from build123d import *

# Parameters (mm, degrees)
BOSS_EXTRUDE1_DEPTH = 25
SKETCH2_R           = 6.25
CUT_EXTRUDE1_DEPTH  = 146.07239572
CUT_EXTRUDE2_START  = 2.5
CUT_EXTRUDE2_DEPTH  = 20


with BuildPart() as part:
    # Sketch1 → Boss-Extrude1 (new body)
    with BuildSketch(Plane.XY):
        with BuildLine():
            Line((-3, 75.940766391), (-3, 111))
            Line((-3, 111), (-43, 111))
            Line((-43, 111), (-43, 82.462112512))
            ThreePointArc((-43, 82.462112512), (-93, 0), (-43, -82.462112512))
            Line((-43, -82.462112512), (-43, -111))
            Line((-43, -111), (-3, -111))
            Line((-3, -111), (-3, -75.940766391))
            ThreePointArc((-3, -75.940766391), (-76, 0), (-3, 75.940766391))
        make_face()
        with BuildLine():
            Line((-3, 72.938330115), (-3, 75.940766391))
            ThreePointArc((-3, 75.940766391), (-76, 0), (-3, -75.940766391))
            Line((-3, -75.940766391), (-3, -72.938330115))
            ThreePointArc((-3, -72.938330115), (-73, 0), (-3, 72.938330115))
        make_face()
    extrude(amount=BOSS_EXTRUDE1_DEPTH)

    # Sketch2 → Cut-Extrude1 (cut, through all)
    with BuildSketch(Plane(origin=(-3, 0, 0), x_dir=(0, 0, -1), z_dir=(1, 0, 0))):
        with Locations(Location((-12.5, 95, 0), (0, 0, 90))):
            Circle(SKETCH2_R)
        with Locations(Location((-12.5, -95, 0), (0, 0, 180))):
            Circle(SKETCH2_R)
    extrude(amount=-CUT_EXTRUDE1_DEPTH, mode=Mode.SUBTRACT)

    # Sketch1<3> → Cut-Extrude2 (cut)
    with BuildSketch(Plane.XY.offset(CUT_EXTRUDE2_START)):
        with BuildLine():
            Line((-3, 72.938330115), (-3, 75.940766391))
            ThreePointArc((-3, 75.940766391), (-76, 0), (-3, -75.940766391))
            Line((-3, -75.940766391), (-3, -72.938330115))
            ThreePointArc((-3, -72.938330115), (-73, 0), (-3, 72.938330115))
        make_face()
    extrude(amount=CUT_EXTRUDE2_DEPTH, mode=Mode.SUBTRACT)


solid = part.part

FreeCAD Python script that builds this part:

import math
import FreeCAD as App
import Part
import Sketcher
from FreeCAD import Vector

doc = App.newDocument("Part")
body = doc.addObject("PartDesign::Body", "Body")

sketch1 = body.newObject("Sketcher::SketchObject", "Sketch")
sketch1.AttachmentSupport = (doc.getObject("XY_Plane"), [""])
sketch1.MapMode = "FlatFace"
sketch1.addGeometry([
    Part.LineSegment(Vector(-3, 111, 0), Vector(-43, 111, 0)),
    Part.LineSegment(Vector(-43, 111, 0), Vector(-43, 82.462113, 0)),
    Part.ArcOfCircle(Part.Circle(Vector(0, 0, 0), Vector(0, 0, 1), 93), math.radians(117.53986), math.radians(242.46014)),
    Part.LineSegment(Vector(-43, -82.462113, 0), Vector(-43, -111, 0)),
    Part.LineSegment(Vector(-43, -111, 0), Vector(-3, -111, 0)),
    Part.LineSegment(Vector(-3, -111, 0), Vector(-3, -72.93833, 0)),
    Part.ArcOfCircle(Part.Circle(Vector(0, 0, 0), Vector(0, 0, 1), 73), math.radians(92.355284), math.radians(267.644716)),
    Part.LineSegment(Vector(-3, 72.93833, 0), Vector(-3, 111, 0)),
], False)
sketch1.addConstraint([
    Sketcher.Constraint("Coincident", 0, 2, 1, 1),
    Sketcher.Constraint("Coincident", 1, 2, 2, 1),
    Sketcher.Constraint("Coincident", 2, 2, 3, 1),
    Sketcher.Constraint("Coincident", 3, 2, 4, 1),
    Sketcher.Constraint("Coincident", 4, 2, 5, 1),
    Sketcher.Constraint("Coincident", 5, 2, 6, 2),
    Sketcher.Constraint("Coincident", 6, 1, 7, 1),
    Sketcher.Constraint("Coincident", 7, 2, 0, 1),
    Sketcher.Constraint("Horizontal", 0),
    Sketcher.Constraint("Vertical", 1),
    Sketcher.Constraint("Vertical", 3),
    Sketcher.Constraint("Horizontal", 4),
    Sketcher.Constraint("Vertical", 5),
    Sketcher.Constraint("Vertical", 7),
    Sketcher.Constraint("Coincident", 2, 3, -1, 1),
    Sketcher.Constraint("Coincident", 6, 3, -1, 1),
    Sketcher.Constraint("Symmetric", 0, 2, 3, 2, -1),
    Sketcher.Constraint("Vertical", 5, 2, 6, 1),
    Sketcher.Constraint("Radius", 2, 93.0),
    Sketcher.Constraint("Radius", 6, 73.0),
    Sketcher.Constraint("DistanceX", 0, 2, 0, 1, 40.0),
    Sketcher.Constraint("DistanceX", 0, 2, -1, 1, 43.0),
    Sketcher.Constraint("DistanceY", -1, 1, 0, 2, 111.0),
])
pad1 = body.newObject("PartDesign::Pad", "Pad")
pad1.Profile = sketch1
pad1.Length = 25

sketch2 = body.newObject("Sketcher::SketchObject", "Sketch001")
sketch2.AttachmentSupport = (doc.getObject("YZ_Plane"), [""])
sketch2.MapMode = "FlatFace"
sketch2.AttachmentOffset = App.Placement(Vector(0, 0, -3), App.Rotation())
sketch2.addGeometry([
    Part.Circle(Vector(95, 12.5, 0), Vector(0, 0, 1), 6.25),
    Part.Circle(Vector(-95, 12.5, 0), Vector(0, 0, 1), 6.25),
], False)
sketch2.addConstraint([
    Sketcher.Constraint("Equal", 0, 1),
    Sketcher.Constraint("Symmetric", 0, 3, 1, 3, -2),
    Sketcher.Constraint("Diameter", 0, 12.5),
    Sketcher.Constraint("DistanceX", -1, 1, 0, 3, 95.0),
    Sketcher.Constraint("DistanceY", -1, 1, 0, 3, 12.5),
])
pocket1 = body.newObject("PartDesign::Pocket", "Pocket")
pocket1.Profile = sketch2
pocket1.Type = "ThroughAll"

sketch3 = body.newObject("Sketcher::SketchObject", "Sketch002")
sketch3.AttachmentSupport = (doc.getObject("XY_Plane"), [""])
sketch3.MapMode = "FlatFace"
sketch3.AttachmentOffset = App.Placement(Vector(0, 0, 2.5), App.Rotation())
sketch3.addGeometry([
    Part.LineSegment(Vector(-3, 72.93833, 0), Vector(-3, 75.940766, 0)),
    Part.ArcOfCircle(Part.Circle(Vector(0, 0, 0), Vector(0, 0, 1), 76), math.radians(92.262263), math.radians(267.737737)),
    Part.LineSegment(Vector(-3, -75.940766, 0), Vector(-3, -72.93833, 0)),
    Part.ArcOfCircle(Part.Circle(Vector(0, 0, 0), Vector(0, 0, 1), 73), math.radians(92.355284), math.radians(267.644716)),
], False)
sketch3.addConstraint([
    Sketcher.Constraint("Coincident", 0, 2, 1, 1),
    Sketcher.Constraint("Coincident", 1, 2, 2, 1),
    Sketcher.Constraint("Coincident", 2, 2, 3, 2),
    Sketcher.Constraint("Coincident", 3, 1, 0, 1),
    Sketcher.Constraint("Vertical", 0),
    Sketcher.Constraint("Vertical", 2),
    Sketcher.Constraint("Coincident", 1, 3, -1, 1),
    Sketcher.Constraint("Coincident", 3, 3, -1, 1),
    Sketcher.Constraint("Vertical", 0, 2, 1, 2),
    Sketcher.Constraint("Radius", 1, 76.0),
    Sketcher.Constraint("Radius", 3, 73.0),
    Sketcher.Constraint("DistanceX", 0, 2, -1, 1, 3.0),
])
pocket2 = body.newObject("PartDesign::Pocket", "Pocket001")
pocket2.Profile = sketch3
pocket2.Length = 20
pocket2.Reversed = True

doc.recompute()
